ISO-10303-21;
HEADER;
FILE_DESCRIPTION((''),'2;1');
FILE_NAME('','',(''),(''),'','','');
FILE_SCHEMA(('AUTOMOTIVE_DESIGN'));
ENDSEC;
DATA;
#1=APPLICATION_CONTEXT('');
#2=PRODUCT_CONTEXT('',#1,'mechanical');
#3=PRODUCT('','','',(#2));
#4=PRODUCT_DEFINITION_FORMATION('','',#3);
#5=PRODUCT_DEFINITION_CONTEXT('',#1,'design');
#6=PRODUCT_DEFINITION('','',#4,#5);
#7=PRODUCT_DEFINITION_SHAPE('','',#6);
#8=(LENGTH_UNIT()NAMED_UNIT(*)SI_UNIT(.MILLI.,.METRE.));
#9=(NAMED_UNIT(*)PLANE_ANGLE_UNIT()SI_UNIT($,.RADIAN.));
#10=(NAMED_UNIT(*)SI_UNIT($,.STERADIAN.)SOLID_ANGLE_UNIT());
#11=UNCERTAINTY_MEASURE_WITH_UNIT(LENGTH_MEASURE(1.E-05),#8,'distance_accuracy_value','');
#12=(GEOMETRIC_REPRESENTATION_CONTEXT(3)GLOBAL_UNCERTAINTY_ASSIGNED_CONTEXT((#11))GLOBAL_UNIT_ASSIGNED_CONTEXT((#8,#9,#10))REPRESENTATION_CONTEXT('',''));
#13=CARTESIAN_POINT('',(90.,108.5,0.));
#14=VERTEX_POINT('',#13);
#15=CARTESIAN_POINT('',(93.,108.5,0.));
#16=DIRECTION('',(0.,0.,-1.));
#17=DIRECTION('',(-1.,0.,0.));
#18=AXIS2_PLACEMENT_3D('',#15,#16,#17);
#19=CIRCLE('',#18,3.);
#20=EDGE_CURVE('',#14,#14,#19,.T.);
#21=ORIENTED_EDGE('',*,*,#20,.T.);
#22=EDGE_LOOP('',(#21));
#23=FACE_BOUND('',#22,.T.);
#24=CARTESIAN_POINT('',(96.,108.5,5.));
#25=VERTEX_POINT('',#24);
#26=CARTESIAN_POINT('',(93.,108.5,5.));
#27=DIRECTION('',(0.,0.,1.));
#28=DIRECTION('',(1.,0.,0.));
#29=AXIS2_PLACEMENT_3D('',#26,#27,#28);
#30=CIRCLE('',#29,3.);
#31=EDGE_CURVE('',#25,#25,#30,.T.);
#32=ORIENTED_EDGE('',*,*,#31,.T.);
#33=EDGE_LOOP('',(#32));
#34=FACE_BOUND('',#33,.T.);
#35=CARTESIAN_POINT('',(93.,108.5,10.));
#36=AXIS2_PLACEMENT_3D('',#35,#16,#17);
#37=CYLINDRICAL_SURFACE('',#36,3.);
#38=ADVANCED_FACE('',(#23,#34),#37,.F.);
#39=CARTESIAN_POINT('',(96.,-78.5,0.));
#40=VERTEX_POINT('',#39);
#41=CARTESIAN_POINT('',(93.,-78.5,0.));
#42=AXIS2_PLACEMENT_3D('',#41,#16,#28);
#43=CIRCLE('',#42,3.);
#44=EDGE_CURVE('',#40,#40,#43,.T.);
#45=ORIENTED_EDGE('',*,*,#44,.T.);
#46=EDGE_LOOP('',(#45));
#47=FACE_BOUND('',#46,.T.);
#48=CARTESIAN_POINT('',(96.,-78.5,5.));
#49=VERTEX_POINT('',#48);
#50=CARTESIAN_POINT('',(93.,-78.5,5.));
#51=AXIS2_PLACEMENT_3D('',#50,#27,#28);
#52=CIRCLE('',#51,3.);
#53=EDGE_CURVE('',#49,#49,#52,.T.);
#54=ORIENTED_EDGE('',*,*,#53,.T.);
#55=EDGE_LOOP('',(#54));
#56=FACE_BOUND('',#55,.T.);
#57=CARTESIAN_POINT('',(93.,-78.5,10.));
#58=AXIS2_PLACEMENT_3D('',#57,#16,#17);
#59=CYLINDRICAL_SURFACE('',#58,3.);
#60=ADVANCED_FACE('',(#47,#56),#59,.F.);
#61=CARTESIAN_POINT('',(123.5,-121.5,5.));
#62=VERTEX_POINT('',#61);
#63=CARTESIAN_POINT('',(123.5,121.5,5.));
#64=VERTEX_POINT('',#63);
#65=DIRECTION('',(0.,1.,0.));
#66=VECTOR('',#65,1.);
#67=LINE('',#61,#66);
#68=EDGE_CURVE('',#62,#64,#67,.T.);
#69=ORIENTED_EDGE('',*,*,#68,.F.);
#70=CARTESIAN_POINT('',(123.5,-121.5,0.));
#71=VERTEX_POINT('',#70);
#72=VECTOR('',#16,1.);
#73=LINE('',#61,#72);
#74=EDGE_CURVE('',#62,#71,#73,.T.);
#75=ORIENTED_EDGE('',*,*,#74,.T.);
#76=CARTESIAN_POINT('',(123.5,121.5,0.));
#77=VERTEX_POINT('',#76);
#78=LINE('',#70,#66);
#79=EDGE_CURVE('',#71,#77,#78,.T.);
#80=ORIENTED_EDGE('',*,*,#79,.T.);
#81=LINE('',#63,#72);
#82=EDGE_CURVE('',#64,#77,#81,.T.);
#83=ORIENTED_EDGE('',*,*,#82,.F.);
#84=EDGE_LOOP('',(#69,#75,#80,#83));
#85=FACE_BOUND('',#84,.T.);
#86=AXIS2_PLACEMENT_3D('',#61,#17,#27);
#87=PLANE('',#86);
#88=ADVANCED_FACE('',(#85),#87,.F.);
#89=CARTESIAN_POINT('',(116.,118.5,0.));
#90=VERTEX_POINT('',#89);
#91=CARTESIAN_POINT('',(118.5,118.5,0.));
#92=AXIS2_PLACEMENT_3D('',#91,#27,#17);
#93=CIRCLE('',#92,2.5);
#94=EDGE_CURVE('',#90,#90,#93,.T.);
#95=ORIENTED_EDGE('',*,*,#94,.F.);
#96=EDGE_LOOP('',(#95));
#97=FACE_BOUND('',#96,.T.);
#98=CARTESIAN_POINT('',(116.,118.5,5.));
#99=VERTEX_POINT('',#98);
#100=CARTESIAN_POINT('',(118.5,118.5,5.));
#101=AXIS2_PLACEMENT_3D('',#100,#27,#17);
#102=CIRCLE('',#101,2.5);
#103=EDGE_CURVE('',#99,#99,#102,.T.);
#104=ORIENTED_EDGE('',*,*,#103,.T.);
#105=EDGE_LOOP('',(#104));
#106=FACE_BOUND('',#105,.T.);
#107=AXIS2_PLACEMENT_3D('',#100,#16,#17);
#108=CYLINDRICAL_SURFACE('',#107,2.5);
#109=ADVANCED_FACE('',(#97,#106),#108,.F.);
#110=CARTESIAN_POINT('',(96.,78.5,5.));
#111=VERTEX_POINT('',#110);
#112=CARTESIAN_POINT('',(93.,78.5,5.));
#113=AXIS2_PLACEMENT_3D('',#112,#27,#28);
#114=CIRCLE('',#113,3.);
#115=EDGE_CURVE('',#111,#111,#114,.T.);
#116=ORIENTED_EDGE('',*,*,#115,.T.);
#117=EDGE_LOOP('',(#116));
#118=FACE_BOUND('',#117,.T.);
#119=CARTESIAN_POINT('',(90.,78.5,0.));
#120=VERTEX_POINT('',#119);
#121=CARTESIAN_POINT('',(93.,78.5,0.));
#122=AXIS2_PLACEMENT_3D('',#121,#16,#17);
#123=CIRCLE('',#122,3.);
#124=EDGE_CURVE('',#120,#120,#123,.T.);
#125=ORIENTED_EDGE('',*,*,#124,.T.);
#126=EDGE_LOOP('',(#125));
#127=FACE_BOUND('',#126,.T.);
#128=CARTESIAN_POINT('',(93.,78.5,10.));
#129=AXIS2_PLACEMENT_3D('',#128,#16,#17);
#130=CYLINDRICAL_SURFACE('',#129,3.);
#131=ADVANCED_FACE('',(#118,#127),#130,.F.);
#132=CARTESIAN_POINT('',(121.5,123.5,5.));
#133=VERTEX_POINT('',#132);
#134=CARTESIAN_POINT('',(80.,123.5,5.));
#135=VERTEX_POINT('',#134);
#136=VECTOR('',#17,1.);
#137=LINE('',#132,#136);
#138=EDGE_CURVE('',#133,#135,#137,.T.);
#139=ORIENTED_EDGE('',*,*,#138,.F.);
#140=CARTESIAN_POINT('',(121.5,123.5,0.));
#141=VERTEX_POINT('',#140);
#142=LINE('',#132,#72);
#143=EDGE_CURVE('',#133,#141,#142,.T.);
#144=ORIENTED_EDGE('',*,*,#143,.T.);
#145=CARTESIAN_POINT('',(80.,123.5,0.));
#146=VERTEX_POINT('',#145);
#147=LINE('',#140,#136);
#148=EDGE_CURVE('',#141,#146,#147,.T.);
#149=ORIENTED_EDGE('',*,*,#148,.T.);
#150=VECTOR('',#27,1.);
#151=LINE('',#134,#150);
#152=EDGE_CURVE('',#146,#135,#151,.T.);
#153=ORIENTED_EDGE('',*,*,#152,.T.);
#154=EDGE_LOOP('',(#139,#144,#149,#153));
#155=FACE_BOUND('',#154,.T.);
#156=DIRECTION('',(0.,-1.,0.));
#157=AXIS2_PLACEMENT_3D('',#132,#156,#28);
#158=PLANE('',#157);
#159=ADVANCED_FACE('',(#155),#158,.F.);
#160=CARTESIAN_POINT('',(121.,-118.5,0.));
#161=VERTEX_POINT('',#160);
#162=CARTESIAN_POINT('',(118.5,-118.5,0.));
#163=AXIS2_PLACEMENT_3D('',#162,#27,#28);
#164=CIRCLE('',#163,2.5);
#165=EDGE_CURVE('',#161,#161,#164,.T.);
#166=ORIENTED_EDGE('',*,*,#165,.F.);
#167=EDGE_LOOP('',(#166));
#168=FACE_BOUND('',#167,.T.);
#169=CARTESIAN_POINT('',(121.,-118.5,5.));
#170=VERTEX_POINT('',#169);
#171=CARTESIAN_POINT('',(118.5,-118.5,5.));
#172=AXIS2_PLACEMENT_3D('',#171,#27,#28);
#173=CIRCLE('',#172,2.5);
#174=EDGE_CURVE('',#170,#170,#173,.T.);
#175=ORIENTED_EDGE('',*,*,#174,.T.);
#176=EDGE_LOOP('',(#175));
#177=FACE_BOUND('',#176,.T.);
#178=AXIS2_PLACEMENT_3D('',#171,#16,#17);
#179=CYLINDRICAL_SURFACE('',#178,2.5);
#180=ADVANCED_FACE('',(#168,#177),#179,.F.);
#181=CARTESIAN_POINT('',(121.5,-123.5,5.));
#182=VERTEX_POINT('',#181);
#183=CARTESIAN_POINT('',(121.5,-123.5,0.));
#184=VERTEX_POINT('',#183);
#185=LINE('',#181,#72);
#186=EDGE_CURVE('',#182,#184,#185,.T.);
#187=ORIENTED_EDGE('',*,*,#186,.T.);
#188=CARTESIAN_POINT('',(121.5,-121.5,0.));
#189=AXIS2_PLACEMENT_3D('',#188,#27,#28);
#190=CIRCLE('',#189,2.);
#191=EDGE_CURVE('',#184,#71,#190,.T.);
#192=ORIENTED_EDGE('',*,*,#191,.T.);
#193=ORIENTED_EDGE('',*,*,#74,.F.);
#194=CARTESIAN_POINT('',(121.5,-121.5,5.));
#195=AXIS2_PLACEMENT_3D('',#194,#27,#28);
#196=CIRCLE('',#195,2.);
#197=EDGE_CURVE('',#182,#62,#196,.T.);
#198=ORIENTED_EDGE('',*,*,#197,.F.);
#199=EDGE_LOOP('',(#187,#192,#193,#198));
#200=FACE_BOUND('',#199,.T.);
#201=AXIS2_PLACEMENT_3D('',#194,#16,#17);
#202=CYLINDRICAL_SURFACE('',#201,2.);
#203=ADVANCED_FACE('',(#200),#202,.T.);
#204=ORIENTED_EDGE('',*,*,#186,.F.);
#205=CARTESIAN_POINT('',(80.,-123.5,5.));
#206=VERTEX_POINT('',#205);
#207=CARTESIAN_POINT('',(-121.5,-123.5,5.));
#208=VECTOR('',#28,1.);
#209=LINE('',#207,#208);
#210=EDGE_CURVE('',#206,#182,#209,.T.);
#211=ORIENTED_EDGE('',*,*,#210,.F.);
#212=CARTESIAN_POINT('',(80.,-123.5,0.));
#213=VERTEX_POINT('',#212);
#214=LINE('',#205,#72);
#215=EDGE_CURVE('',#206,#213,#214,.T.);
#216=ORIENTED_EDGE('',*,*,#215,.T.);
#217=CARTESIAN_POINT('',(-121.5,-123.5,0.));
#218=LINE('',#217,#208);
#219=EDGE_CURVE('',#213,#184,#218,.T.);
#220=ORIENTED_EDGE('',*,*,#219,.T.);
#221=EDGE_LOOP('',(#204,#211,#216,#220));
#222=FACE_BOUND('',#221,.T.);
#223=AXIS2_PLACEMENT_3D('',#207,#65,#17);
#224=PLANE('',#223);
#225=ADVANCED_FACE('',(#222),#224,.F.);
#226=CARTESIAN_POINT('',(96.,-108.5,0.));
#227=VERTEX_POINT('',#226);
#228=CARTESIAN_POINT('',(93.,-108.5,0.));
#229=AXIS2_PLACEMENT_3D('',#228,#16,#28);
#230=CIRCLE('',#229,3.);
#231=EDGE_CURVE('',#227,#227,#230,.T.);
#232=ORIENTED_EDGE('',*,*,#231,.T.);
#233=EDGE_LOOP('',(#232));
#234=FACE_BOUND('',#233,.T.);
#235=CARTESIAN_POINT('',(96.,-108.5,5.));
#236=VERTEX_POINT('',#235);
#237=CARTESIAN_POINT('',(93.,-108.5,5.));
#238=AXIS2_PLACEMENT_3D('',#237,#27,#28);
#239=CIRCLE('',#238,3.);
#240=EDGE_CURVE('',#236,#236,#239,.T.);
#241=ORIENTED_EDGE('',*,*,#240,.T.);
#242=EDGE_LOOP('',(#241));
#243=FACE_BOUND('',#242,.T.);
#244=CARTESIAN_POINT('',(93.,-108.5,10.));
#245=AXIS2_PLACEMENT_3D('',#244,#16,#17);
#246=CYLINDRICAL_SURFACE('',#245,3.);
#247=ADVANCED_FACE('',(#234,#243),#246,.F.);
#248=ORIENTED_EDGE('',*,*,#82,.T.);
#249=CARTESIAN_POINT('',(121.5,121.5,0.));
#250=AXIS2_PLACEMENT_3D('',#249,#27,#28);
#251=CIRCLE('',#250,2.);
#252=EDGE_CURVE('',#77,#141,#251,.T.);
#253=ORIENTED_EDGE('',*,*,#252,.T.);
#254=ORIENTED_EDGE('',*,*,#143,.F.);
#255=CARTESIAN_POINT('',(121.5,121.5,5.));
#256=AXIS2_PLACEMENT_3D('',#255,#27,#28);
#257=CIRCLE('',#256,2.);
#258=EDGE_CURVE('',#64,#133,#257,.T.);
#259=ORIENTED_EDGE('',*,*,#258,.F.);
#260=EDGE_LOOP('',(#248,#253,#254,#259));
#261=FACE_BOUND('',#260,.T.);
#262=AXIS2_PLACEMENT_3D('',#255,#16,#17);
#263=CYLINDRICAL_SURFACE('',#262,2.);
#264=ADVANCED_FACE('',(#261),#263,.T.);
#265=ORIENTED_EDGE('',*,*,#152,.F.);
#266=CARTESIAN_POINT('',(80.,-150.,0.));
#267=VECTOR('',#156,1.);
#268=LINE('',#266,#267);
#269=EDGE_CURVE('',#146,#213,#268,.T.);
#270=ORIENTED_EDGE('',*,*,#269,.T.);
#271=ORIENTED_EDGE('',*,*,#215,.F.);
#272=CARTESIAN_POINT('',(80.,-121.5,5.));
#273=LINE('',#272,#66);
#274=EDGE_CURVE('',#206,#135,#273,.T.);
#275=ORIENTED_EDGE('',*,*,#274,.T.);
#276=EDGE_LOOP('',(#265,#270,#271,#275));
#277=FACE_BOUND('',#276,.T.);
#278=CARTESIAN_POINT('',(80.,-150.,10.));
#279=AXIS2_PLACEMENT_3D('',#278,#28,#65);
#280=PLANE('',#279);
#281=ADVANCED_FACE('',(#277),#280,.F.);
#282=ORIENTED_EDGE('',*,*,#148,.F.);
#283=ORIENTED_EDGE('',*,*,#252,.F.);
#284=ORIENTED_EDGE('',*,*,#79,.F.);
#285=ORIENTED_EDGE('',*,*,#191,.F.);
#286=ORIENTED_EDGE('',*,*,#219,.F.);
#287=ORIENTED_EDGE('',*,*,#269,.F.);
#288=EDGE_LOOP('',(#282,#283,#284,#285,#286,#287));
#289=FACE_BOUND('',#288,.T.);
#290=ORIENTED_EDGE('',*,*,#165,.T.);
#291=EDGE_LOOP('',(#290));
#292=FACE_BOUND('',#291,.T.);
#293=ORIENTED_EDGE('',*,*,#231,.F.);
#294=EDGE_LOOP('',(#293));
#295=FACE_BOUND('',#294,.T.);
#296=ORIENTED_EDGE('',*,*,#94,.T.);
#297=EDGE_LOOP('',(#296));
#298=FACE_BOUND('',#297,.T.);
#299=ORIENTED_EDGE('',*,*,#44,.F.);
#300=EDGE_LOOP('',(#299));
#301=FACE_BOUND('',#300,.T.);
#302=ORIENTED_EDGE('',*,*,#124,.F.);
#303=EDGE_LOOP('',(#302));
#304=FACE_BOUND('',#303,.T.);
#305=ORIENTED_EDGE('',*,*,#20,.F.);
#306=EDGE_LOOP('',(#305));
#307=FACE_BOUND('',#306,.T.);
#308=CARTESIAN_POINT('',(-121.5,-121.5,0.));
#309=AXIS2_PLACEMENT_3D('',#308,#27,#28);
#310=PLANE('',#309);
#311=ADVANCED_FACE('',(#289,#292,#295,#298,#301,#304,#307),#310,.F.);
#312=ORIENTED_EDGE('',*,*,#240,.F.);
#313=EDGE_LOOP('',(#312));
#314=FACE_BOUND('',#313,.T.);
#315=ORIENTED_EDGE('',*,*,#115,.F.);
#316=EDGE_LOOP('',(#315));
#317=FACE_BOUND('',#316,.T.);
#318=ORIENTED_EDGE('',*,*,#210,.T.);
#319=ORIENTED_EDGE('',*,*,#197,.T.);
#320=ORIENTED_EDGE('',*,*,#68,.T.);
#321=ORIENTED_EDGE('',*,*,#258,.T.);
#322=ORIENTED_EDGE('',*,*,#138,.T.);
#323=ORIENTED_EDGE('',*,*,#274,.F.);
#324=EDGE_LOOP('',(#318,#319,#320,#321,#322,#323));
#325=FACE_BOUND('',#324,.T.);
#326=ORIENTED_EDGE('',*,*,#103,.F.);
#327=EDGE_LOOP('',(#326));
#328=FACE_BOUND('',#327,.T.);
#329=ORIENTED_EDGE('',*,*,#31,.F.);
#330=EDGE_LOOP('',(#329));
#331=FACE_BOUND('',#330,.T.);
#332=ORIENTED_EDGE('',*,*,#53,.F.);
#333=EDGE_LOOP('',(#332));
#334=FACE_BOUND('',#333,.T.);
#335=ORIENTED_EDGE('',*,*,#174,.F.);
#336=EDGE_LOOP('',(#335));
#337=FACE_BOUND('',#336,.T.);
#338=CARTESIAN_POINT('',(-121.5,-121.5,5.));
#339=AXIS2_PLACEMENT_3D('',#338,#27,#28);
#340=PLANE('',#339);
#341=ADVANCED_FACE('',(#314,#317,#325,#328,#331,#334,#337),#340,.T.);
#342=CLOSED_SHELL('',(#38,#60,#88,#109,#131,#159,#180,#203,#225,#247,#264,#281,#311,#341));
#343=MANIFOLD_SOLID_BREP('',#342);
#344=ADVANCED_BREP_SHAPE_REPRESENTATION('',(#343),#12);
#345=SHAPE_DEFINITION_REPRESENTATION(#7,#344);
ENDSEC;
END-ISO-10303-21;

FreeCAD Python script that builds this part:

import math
import FreeCAD as App
import Part
import Sketcher

V = App.Vector


def add_polygon(sketch, points):
    """Adds a closed chain of lines whose ends are joined by coincident constraints."""
    first, n = sketch.GeometryCount, len(points)
    for a, b in zip(points, points[1:] + points[:1]):
        sketch.addGeometry(Part.LineSegment(App.Vector(*a, 0), App.Vector(*b, 0)), False)
    for i in range(n):
        sketch.addConstraint(Sketcher.Constraint("Coincident", first + i, 2, first + (i + 1) % n, 1))

doc = App.newDocument("Part")
body = doc.addObject("PartDesign::Body", "Body")

# Sketch on XY plane
sketch1 = body.newObject("Sketcher::SketchObject", "Sketch")
sketch1.AttachmentSupport = (doc.getObject("XY_Plane"), [""])
sketch1.MapMode = "FlatFace"
sketch1.addGeometry([
    Part.LineSegment(V(-123.5, 121.5, 0), V(-123.5, -121.5, 0)),  # 0
    Part.ArcOfCircle(Part.Circle(V(-121.5, -121.5, 0), V(0, 0, 1), 2), math.radians(-180), math.radians(-90)),  # 1
    Part.LineSegment(V(-121.5, -123.5, 0), V(121.5, -123.5, 0)),  # 2
    Part.ArcOfCircle(Part.Circle(V(121.5, -121.5, 0), V(0, 0, 1), 2), math.radians(-90), math.radians(0)),  # 3
    Part.LineSegment(V(123.5, -121.5, 0), V(123.5, 121.5, 0)),  # 4
    Part.ArcOfCircle(Part.Circle(V(121.5, 121.5, 0), V(0, 0, 1), 2), math.radians(0), math.radians(90)),  # 5
    Part.LineSegment(V(121.5, 123.5, 0), V(-121.5, 123.5, 0)),  # 6
    Part.ArcOfCircle(Part.Circle(V(-121.5, 121.5, 0), V(0, 0, 1), 2), math.radians(90), math.radians(180)),  # 7
    Part.Circle(V(-118.5, -118.5, 0), V(0, 0, 1), 2.5),  # 8
    Part.Circle(V(118.5, -118.5, 0), V(0, 0, 1), 2.5),  # 9
    Part.Circle(V(-118.5, 118.5, 0), V(0, 0, 1), 2.5),  # 10
    Part.Circle(V(118.5, 118.5, 0), V(0, 0, 1), 2.5),  # 11
], False)
sketch1.addConstraint([
    Sketcher.Constraint("Tangent", 0, 2, 1, 1),
    Sketcher.Constraint("Tangent", 1, 2, 2, 1),
    Sketcher.Constraint("Tangent", 2, 2, 3, 1),
    Sketcher.Constraint("Tangent", 3, 2, 4, 1),
    Sketcher.Constraint("Tangent", 4, 2, 5, 1),
    Sketcher.Constraint("Tangent", 5, 2, 6, 1),
    Sketcher.Constraint("Tangent", 6, 2, 7, 1),
    Sketcher.Constraint("Tangent", 7, 2, 0, 1),
    Sketcher.Constraint("Vertical", 0),
    Sketcher.Constraint("Horizontal", 2),
    Sketcher.Constraint("Vertical", 4),
    Sketcher.Constraint("Horizontal", 6),
    Sketcher.Constraint("Equal", 1, 3),
    Sketcher.Constraint("Equal", 3, 5),
    Sketcher.Constraint("Equal", 5, 7),
    Sketcher.Constraint("Equal", 8, 9),
    Sketcher.Constraint("Equal", 9, 10),
    Sketcher.Constraint("Equal", 10, 11),
    Sketcher.Constraint("Symmetric", 1, 3, 5, 3, -1, 1),
    Sketcher.Constraint("Symmetric", 9, 3, 10, 3, -1, 1),
    Sketcher.Constraint("Symmetric", 8, 3, 11, 3, -1, 1),
    Sketcher.Constraint("Symmetric", 8, 3, 9, 3, -2),
    Sketcher.Constraint("Equal", 6, 0),
    Sketcher.Constraint("Diameter", 8, 5.0),
    Sketcher.Constraint("Radius", 1, 2.0),
    Sketcher.Constraint("DistanceX", 2, 1, 2, 2, 243.0),
    Sketcher.Constraint("DistanceX", 1, 3, 8, 3, 3.0),
    Sketcher.Constraint("DistanceY", 1, 3, 8, 3, 3.0),
])
pad1 = body.newObject("PartDesign::Pad", "Pad")
pad1.Profile = sketch1
pad1.Length = 5

# Sketch on XY plane
sketch2 = body.newObject("Sketcher::SketchObject", "Sketch001")
sketch2.AttachmentSupport = (doc.getObject("XY_Plane"), [""])
sketch2.MapMode = "FlatFace"
sketch2.addGeometry(Part.Circle(V(-28.3, 28.3, 0), V(0, 0, 1), 1.5), False)  # 0
sketch2.addGeometry(Part.Circle(V(-28.3, -28.3, 0), V(0, 0, 1), 1.5), False)  # 1
sketch2.addGeometry(Part.Circle(V(28.3, -28.3, 0), V(0, 0, 1), 1.5), False)  # 2
sketch2.addGeometry(Part.Circle(V(28.3, 28.3, 0), V(0, 0, 1), 1.5), False)  # 3
add_polygon(sketch2, [(25, 25), (25, -25), (-25, -25), (-25, 25)])  # lines 4-7
sketch2.addConstraint([
    Sketcher.Constraint("Vertical", 4),
    Sketcher.Constraint("Horizontal", 5),
    Sketcher.Constraint("Vertical", 6),
    Sketcher.Constraint("Horizontal", 7),
    Sketcher.Constraint("Equal", 0, 1),
    Sketcher.Constraint("Equal", 1, 2),
    Sketcher.Constraint("Equal", 2, 3),
    Sketcher.Constraint("Symmetric", 0, 3, 2, 3, -1, 1),
    Sketcher.Constraint("Symmetric", 1, 3, 3, 3, -1, 1),
    Sketcher.Constraint("Symmetric", 4, 2, 6, 2, -1, 1),
    Sketcher.Constraint("Symmetric", 1, 3, 2, 3, -2),
    Sketcher.Constraint("Equal", 7, 4),
    Sketcher.Constraint("Diameter", 0, 3.0),
    Sketcher.Constraint("DistanceX", 5, 2, 5, 1, 50.0),
    Sketcher.Constraint("DistanceX", 0, 3, -1, 1, 28.284271),
    Sketcher.Constraint("DistanceY", -1, 1, 0, 3, 28.284271),
])
pocket1 = body.newObject("PartDesign::Pocket", "Pocket")
pocket1.Profile = sketch2
pocket1.Length = 5
pocket1.Reversed = True

# Sketch on XY plane
sketch3 = body.newObject("Sketcher::SketchObject", "Sketch002")
sketch3.AttachmentSupport = (doc.getObject("XY_Plane"), [""])
sketch3.MapMode = "FlatFace"
add_polygon(sketch3, [(80, 150), (80, -150), (-170, -150), (-170, 150)])  # lines 0-3
sketch3.addConstraint([
    Sketcher.Constraint("Vertical", 0),
    Sketcher.Constraint("Horizontal", 1),
    Sketcher.Constraint("Vertical", 2),
    Sketcher.Constraint("Horizontal", 3),
    Sketcher.Constraint("DistanceX", 1, 2, 1, 1, 250.0),
    Sketcher.Constraint("DistanceY", 0, 2, 0, 1, 300.0),
    Sketcher.Constraint("DistanceX", -1, 1, 0, 2, 80.0),
    Sketcher.Constraint("DistanceY", 0, 2, -1, 1, 150.0),
])
pocket2 = body.newObject("PartDesign::Pocket", "Pocket001")
pocket2.Profile = sketch3
pocket2.Length = 10
pocket2.Reversed = True

# Sketch on XY plane
sketch4 = body.newObject("Sketcher::SketchObject", "Sketch003")
sketch4.AttachmentSupport = (doc.getObject("XY_Plane"), [""])
sketch4.MapMode = "FlatFace"
sketch4.addGeometry([
    Part.Circle(V(93, 78.5, 0), V(0, 0, 1), 3),
    Part.Circle(V(93, 108.5, 0), V(0, 0, 1), 3),
    Part.Circle(V(93, -78.5, 0), V(0, 0, 1), 3),
    Part.Circle(V(93, -108.5, 0), V(0, 0, 1), 3),
], False)
sketch4.addConstraint([
    Sketcher.Constraint("Equal", 0, 1),
    Sketcher.Constraint("Equal", 1, 2),
    Sketcher.Constraint("Equal", 2, 3),
    Sketcher.Constraint("Symmetric", 0, 3, 2, 3, -1),
    Sketcher.Constraint("Symmetric", 1, 3, 3, 3, -1),
    Sketcher.Constraint("Vertical", 0, 3, 1, 3),
    Sketcher.Constraint("Diameter", 0, 6.0),
    Sketcher.Constraint("DistanceX", -1, 1, 0, 3, 93.0),
    Sketcher.Constraint("DistanceY", 0, 3, 1, 3, 30.0),
    Sketcher.Constraint("DistanceY", 2, 3, 0, 3, 157.0),
])
pocket3 = body.newObject("PartDesign::Pocket", "Pocket002")
pocket3.Profile = sketch4
pocket3.Length = 10
pocket3.Reversed = True

doc.recompute()
